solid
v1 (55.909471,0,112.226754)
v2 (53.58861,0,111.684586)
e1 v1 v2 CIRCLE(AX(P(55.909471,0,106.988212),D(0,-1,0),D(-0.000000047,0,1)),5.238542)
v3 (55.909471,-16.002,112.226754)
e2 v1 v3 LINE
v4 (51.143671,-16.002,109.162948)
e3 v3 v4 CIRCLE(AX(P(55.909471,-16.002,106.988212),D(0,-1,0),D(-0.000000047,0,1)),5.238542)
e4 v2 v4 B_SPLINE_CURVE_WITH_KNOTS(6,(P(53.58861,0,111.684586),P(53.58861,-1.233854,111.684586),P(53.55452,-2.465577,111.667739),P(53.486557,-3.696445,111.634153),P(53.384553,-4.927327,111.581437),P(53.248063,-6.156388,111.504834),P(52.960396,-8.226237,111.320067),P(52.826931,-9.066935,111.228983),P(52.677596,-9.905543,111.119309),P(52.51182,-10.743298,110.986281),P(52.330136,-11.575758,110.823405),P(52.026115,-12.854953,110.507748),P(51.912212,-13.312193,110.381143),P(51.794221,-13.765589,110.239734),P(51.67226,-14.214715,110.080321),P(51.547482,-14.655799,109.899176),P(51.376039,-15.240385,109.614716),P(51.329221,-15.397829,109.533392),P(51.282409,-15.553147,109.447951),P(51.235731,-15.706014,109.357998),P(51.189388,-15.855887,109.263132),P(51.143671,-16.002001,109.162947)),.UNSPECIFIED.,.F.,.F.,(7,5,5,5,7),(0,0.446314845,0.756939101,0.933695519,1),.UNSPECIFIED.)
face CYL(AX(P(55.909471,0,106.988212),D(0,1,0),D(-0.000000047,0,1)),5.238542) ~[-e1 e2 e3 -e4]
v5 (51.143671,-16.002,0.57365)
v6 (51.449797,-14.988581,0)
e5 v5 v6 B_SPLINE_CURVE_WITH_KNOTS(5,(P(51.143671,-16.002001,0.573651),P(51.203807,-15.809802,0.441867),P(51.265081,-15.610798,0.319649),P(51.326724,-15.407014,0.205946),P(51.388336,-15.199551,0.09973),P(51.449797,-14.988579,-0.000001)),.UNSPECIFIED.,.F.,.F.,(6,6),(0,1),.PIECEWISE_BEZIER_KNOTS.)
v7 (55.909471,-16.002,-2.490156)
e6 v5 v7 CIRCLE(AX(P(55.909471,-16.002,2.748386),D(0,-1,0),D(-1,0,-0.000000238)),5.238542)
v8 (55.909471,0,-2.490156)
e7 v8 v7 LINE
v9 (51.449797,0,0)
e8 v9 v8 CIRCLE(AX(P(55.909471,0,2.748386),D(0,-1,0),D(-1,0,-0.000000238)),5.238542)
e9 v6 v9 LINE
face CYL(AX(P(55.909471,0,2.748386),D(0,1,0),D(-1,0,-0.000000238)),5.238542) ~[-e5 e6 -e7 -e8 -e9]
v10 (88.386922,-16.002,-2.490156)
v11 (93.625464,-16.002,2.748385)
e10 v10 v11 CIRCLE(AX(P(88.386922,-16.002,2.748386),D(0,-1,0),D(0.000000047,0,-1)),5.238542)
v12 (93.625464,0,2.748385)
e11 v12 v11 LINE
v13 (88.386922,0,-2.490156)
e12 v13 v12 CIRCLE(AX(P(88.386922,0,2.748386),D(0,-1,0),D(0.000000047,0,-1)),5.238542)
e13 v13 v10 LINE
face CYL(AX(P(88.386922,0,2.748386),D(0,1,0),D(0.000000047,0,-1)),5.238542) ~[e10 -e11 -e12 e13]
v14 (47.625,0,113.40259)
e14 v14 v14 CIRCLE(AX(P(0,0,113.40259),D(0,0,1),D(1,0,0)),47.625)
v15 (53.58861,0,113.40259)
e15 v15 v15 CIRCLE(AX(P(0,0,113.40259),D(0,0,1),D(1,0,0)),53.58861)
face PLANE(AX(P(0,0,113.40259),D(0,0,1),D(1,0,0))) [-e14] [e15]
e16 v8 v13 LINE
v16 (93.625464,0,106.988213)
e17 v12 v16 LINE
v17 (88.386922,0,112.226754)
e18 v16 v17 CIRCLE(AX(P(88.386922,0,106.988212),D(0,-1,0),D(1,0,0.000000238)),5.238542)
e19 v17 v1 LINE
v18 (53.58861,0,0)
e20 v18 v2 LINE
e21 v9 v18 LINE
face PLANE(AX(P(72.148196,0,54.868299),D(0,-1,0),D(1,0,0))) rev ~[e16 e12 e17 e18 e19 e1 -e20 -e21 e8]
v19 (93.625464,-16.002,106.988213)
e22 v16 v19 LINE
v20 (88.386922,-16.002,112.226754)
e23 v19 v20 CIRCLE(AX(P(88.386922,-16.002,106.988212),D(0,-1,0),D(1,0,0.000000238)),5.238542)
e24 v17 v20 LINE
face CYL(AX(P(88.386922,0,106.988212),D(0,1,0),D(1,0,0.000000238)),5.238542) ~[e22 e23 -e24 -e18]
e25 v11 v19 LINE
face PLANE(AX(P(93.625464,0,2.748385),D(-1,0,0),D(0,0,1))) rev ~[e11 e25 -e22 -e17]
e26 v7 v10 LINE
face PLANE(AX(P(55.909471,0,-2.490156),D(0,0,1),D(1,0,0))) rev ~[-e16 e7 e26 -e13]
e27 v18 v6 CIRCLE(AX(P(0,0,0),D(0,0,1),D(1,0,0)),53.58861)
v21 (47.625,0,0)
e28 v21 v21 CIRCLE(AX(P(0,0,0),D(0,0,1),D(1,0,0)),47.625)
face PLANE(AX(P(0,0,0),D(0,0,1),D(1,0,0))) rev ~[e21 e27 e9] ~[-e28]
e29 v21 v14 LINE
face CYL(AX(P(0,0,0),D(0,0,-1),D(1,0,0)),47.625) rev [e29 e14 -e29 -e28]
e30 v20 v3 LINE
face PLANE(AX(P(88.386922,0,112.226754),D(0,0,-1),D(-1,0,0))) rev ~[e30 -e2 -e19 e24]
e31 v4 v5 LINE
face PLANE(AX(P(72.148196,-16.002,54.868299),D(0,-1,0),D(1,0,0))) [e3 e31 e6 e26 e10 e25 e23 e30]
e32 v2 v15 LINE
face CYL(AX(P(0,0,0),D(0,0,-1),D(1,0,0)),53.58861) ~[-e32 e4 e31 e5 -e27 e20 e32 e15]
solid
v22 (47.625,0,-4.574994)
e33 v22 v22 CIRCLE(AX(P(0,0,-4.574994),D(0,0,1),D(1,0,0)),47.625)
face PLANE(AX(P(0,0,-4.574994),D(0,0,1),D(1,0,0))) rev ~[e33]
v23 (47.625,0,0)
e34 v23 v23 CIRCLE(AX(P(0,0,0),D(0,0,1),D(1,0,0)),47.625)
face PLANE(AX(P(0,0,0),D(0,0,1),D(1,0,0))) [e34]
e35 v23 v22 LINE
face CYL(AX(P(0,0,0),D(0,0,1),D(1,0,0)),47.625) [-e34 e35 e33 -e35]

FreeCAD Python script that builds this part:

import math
import FreeCAD as App
import Part
import Sketcher
from FreeCAD import Vector
Q = App.Units.Quantity

doc = App.newDocument("Part")
body = doc.addObject("PartDesign::Body", "Body")

sketch1 = doc.addObject("Sketcher::SketchObject", "Sketch")
body.addObject(sketch1)
sketch1.AttachmentSupport = (doc.XY_Plane, [""])
sketch1.MapMode = "FlatFace"
sketch1.addGeometry(Part.Circle(Vector(0, 0, 0), Vector(0, 0, 1), 54), False)
sketch1.addGeometry(Part.Circle(Vector(0, 0, 0), Vector(0, 0, 1), 48), False)
sketch1.addConstraint(Sketcher.Constraint("Coincident", 0, 3, -1, 1))
sketch1.addConstraint(Sketcher.Constraint("Coincident", 1, 3, -1, 1))
sketch1.addConstraint(Sketcher.Constraint("Diameter", 1, Q("3.75 in")))
sketch1.addConstraint(Sketcher.Constraint("Diameter", 0, Q("107.17722 mm")))
pad1 = doc.addObject("PartDesign::Pad", "Pad")
body.addObject(pad1)
pad1.Profile = sketch1
pad1.Length = 113.40259

sketch2 = doc.addObject("Sketcher::SketchObject", "Sketch001")
body.addObject(sketch2)
sketch2.AttachmentSupport = (doc.XZ_Plane, [""])
sketch2.MapMode = "FlatFace"
sketch2.addGeometry(Part.LineSegment(Vector(88, 112, 0), Vector(56, 112, 0)), False)
sketch2.addGeometry(Part.ArcOfCircle(Part.Circle(Vector(56, 107, 0), Vector(0, 0, 1), 5), math.radians(90), math.radians(180)), False)
sketch2.addGeometry(Part.LineSegment(Vector(51, 107, 0), Vector(51, 3, 0)), False)
sketch2.addGeometry(Part.ArcOfCircle(Part.Circle(Vector(56, 3, 0), Vector(0, 0, 1), 5), math.radians(-180), math.radians(-90)), False)
sketch2.addGeometry(Part.LineSegment(Vector(56, -2, 0), Vector(88, -2, 0)), False)
sketch2.addGeometry(Part.ArcOfCircle(Part.Circle(Vector(88, 3, 0), Vector(0, 0, 1), 5), math.radians(-90), math.radians(0)), False)
sketch2.addGeometry(Part.LineSegment(Vector(94, 3, 0), Vector(94, 107, 0)), False)
sketch2.addGeometry(Part.ArcOfCircle(Part.Circle(Vector(88, 107, 0), Vector(0, 0, 1), 5), math.radians(0), math.radians(90)), False)
sketch2.addConstraint(Sketcher.Constraint("Tangent", 0, 2, 1, 1))
sketch2.addConstraint(Sketcher.Constraint("Tangent", 1, 2, 2, 1))
sketch2.addConstraint(Sketcher.Constraint("Tangent", 2, 2, 3, 1))
sketch2.addConstraint(Sketcher.Constraint("Tangent", 3, 2, 4, 1))
sketch2.addConstraint(Sketcher.Constraint("Tangent", 4, 2, 5, 1))
sketch2.addConstraint(Sketcher.Constraint("Tangent", 5, 2, 6, 1))
sketch2.addConstraint(Sketcher.Constraint("Tangent", 6, 2, 7, 1))
sketch2.addConstraint(Sketcher.Constraint("Tangent", 7, 2, 0, 1))
sketch2.addConstraint(Sketcher.Constraint("Horizontal", 0))
sketch2.addConstraint(Sketcher.Constraint("Vertical", 2))
sketch2.addConstraint(Sketcher.Constraint("Horizontal", 4))
sketch2.addConstraint(Sketcher.Constraint("Vertical", 6))
sketch2.addConstraint(Sketcher.Constraint("Equal", 1, 3))
sketch2.addConstraint(Sketcher.Constraint("Equal", 3, 5))
sketch2.addConstraint(Sketcher.Constraint("Equal", 5, 7))
sketch2.addConstraint(Sketcher.Constraint("DistanceX", -1, 1, 5, 3, Q("3.4798001 in")))
sketch2.addConstraint(Sketcher.Constraint("Radius", 1, Q("5.238542 mm")))
sketch2.addConstraint(Sketcher.Constraint("DistanceX", 0, 2, 0, 1, Q("32.477451 mm")))
sketch2.addConstraint(Sketcher.Constraint("DistanceY", 2, 2, 2, 1, Q("104.239828 mm")))
sketch2.addConstraint(Sketcher.Constraint("DistanceY", -1, 1, 1, 3, Q("106.988212 mm")))
pad2 = doc.addObject("PartDesign::Pad", "Pad001")
body.addObject(pad2)
pad2.Profile = sketch2
pad2.Length = Q("0.63 in")
body2 = doc.addObject("PartDesign::Body", "Body001")

sketch3 = doc.addObject("Sketcher::SketchObject", "Sketch002")
body2.addObject(sketch3)
sketch3.AttachmentSupport = (doc.getObject("XY_Plane001"), [""])
sketch3.MapMode = "FlatFace"
sketch3.addGeometry(Part.Circle(Vector(0, 0, 0), Vector(0, 0, 1), 48), False)
sketch3.addConstraint(Sketcher.Constraint("Coincident", 0, 3, -1, 1))
sketch3.addConstraint(Sketcher.Constraint("Diameter", 0, Q("3.75 in")))
pad3 = doc.addObject("PartDesign::Pad", "Pad002")
body2.addObject(pad3)
pad3.Profile = sketch3
pad3.Length = 4.574994
pad3.Reversed = True

doc.recompute()
